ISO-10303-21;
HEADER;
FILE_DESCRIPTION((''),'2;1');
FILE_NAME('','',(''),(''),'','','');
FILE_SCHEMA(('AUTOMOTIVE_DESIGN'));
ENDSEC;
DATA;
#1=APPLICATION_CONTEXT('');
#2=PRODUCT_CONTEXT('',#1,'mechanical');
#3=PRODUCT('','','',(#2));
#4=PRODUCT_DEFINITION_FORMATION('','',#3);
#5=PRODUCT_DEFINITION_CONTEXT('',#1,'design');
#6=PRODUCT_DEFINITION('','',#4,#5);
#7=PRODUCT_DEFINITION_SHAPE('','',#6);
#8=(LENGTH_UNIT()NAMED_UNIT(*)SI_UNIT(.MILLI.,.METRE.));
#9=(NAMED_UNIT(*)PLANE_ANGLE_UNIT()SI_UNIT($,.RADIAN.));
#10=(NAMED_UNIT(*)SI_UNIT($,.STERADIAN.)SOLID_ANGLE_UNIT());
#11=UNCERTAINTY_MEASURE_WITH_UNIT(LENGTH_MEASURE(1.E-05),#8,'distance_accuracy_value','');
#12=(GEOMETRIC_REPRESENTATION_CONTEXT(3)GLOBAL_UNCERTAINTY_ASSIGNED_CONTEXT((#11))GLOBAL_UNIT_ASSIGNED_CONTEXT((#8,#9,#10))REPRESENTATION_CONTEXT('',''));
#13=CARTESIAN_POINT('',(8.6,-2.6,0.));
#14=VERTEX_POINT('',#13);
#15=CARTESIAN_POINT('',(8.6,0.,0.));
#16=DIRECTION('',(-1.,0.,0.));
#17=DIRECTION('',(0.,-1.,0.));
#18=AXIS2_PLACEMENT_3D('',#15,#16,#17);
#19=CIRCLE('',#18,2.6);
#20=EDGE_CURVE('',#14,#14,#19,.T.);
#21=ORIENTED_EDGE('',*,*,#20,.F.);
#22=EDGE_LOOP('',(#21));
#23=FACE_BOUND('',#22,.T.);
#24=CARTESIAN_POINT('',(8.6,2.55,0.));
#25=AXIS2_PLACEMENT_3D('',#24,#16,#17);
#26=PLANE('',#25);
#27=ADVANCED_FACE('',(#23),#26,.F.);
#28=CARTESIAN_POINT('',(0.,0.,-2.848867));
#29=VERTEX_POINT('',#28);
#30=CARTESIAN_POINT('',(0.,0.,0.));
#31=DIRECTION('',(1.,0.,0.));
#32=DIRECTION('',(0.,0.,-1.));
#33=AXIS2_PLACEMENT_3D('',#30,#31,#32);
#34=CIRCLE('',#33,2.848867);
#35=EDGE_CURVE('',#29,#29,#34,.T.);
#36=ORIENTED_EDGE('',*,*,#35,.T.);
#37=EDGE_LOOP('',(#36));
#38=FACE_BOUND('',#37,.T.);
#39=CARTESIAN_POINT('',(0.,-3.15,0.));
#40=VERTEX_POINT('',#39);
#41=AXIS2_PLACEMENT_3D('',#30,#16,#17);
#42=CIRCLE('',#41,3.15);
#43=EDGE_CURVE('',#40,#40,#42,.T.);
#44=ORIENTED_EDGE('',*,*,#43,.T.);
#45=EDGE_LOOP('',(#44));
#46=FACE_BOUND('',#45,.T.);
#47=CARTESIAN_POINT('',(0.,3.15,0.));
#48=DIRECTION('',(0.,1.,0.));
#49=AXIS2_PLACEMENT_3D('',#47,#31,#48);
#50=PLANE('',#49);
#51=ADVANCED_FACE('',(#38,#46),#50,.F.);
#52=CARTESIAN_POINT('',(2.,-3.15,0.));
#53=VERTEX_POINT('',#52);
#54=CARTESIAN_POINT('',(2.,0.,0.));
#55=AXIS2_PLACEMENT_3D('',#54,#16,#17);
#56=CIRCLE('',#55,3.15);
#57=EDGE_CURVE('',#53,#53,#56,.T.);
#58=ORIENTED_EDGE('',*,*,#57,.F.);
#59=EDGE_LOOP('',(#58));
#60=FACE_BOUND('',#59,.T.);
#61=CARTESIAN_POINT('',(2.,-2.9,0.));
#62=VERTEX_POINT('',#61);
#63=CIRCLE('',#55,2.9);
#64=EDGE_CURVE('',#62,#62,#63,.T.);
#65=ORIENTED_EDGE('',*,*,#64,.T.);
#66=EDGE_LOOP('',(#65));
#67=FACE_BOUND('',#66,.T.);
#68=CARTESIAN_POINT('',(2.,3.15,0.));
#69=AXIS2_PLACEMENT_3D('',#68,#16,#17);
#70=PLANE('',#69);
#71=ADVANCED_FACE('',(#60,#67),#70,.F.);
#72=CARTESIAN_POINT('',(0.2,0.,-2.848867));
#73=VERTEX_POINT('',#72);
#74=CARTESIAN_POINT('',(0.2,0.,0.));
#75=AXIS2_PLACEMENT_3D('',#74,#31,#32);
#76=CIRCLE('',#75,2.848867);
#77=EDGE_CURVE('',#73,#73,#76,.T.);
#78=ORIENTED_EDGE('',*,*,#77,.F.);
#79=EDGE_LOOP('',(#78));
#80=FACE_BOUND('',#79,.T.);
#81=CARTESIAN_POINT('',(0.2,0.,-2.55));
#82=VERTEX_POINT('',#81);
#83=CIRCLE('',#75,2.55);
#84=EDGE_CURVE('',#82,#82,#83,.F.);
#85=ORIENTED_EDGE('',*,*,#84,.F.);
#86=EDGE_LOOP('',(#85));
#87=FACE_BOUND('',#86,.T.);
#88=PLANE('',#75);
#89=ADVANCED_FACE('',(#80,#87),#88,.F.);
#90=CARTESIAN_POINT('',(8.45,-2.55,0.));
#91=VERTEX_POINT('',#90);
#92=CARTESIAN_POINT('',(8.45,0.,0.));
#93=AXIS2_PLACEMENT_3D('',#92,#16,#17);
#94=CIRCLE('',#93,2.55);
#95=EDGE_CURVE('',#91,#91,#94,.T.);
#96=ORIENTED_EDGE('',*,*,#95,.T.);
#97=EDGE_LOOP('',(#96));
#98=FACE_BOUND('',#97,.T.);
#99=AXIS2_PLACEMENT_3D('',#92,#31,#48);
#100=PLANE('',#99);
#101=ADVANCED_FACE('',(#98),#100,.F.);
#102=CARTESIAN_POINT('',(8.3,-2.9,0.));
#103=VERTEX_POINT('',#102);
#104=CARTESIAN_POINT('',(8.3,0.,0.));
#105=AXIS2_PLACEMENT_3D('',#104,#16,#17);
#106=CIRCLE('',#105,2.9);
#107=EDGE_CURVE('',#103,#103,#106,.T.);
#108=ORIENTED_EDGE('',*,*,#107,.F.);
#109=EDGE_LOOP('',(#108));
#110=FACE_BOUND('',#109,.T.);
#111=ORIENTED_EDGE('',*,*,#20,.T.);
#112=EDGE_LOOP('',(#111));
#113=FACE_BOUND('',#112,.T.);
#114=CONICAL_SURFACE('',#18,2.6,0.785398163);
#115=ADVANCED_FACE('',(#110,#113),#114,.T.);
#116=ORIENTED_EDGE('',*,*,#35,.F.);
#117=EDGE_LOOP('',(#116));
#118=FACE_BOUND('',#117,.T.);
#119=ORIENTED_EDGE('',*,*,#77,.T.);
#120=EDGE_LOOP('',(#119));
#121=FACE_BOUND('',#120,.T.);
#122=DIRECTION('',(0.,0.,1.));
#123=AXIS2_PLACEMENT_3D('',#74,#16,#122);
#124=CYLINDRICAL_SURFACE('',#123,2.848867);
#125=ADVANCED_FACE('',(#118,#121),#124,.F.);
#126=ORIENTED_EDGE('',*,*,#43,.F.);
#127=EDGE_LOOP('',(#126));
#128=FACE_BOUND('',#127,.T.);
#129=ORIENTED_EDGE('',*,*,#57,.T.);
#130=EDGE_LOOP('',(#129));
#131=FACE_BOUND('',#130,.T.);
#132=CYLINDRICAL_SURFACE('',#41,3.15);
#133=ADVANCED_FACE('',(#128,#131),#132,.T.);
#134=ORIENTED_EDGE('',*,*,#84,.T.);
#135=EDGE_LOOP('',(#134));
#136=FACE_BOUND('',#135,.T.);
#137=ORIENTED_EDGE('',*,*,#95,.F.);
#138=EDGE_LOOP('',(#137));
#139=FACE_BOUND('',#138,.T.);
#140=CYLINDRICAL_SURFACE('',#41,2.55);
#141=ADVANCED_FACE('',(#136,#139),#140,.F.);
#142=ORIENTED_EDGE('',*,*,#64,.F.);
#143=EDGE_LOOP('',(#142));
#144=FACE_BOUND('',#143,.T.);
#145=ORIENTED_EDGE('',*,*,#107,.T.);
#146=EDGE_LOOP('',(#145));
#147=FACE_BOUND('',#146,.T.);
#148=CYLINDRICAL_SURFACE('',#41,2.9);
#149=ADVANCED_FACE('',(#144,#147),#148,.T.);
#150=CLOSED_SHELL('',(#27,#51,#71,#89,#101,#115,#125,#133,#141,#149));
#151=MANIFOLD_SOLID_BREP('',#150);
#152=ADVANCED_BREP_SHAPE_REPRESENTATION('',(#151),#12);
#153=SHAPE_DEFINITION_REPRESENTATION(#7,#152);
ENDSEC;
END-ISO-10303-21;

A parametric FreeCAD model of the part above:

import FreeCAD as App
import Part
import Sketcher

V = App.Vector
Q = App.Units.Quantity

doc = App.newDocument("Part")
params = doc.addObject("Spreadsheet::Sheet", "Params")
for row, (alias, value) in enumerate([
    ("sketch1_width", "2 mm"),
    ("sketch1_width2", "6.3 mm"),
    ("sketch1_height", "0.6 mm"),
    ("sketch1_height2", "2.6 mm"),
    ("sketch1_width3", "8.45 mm"),
    ("revolution_angle", "360 deg"),
    ("pocket1_length", "0.2 mm"),
], start=1):
    params.set(f"A{row}", alias)
    params.set(f"B{row}", "=" + value)
    params.setAlias(f"B{row}", alias)

body = doc.addObject("PartDesign::Body", "Body")

# Sketch on XY plane
sketch1 = body.newObject("Sketcher::SketchObject", "Sketch")
sketch1.AttachmentSupport = (doc.getObject("XY_Plane"), [""])
sketch1.MapMode = "FlatFace"
sketch1.addGeometry(Part.LineSegment(V(8.6, 2.6, 0), V(8.3, 2.9, 0)), False)
sketch1.addGeometry(Part.LineSegment(V(8.3, 2.9, 0), V(2, 2.9, 0)), False)
sketch1.addGeometry(Part.LineSegment(V(2, 2.9, 0), V(2, 3.15, 0)), False)
sketch1.addGeometry(Part.LineSegment(V(2, 3.15, 0), V(0, 3.15, 0)), False)
sketch1.addGeometry(Part.LineSegment(V(0, 3.15, 0), V(0, 2.55, 0)), False)
sketch1.addGeometry(Part.LineSegment(V(0, 2.55, 0), V(8.45, 2.55, 0)), False)
sketch1.addGeometry(Part.LineSegment(V(8.45, 2.55, 0), V(8.45, 0, 0)), False)
sketch1.addGeometry(Part.LineSegment(V(8.45, 0, 0), V(8.6, 0, 0)), False)
sketch1.addGeometry(Part.LineSegment(V(8.6, 0, 0), V(8.6, 2.6, 0)), False)
sketch1.addConstraint(Sketcher.Constraint("Coincident", 0, 2, 1, 1))
sketch1.addConstraint(Sketcher.Constraint("Coincident", 1, 2, 2, 1))
sketch1.addConstraint(Sketcher.Constraint("Coincident", 2, 2, 3, 1))
sketch1.addConstraint(Sketcher.Constraint("Coincident", 3, 2, 4, 1))
sketch1.addConstraint(Sketcher.Constraint("Coincident", 4, 2, 5, 1))
sketch1.addConstraint(Sketcher.Constraint("Coincident", 5, 2, 6, 1))
sketch1.addConstraint(Sketcher.Constraint("Coincident", 6, 2, 7, 1))
sketch1.addConstraint(Sketcher.Constraint("Coincident", 7, 2, 8, 1))
sketch1.addConstraint(Sketcher.Constraint("Coincident", 8, 2, 0, 1))
sketch1.addConstraint(Sketcher.Constraint("Horizontal", 1))
sketch1.addConstraint(Sketcher.Constraint("Vertical", 2))
sketch1.addConstraint(Sketcher.Constraint("Horizontal", 3))
sketch1.addConstraint(Sketcher.Constraint("Vertical", 4))
sketch1.addConstraint(Sketcher.Constraint("Horizontal", 5))
sketch1.addConstraint(Sketcher.Constraint("Vertical", 6))
sketch1.addConstraint(Sketcher.Constraint("Horizontal", 7))
sketch1.addConstraint(Sketcher.Constraint("Vertical", 8))
sketch1.addConstraint(Sketcher.Constraint("PointOnObject", 3, 2, -2))
sketch1.addConstraint(Sketcher.Constraint("PointOnObject", 6, 2, -1))
sketch1.addConstraint(Sketcher.Constraint("DistanceX", 3, 2, 3, 1, Q("2 mm")))
sketch1.addConstraint(Sketcher.Constraint("Angle", 0, Q("135 deg")))
sketch1.addConstraint(Sketcher.Constraint("DistanceX", 1, 2, 1, 1, Q("6.3 mm")))
sketch1.addConstraint(Sketcher.Constraint("DistanceY", 4, 2, 4, 1, Q("0.6 mm")))
sketch1.addConstraint(Sketcher.Constraint("DistanceY", 8, 1, 8, 2, Q("2.6 mm")))
sketch1.addConstraint(Sketcher.Constraint("DistanceX", 5, 1, 5, 2, Q("8.45 mm")))
sketch1.addConstraint(Sketcher.Constraint("DistanceX", 7, 1, 7, 2, Q("0.15 mm")))
sketch1.addConstraint(Sketcher.Constraint("DistanceY", 2, 1, 2, 2, Q("0.25 mm")))
sketch1.setExpression("Constraints[19]", "Params.sketch1_width")
sketch1.setExpression("Constraints[21]", "Params.sketch1_width2")
sketch1.setExpression("Constraints[22]", "Params.sketch1_height")
sketch1.setExpression("Constraints[23]", "Params.sketch1_height2")
sketch1.setExpression("Constraints[24]", "Params.sketch1_width3")
revolution = body.newObject("PartDesign::Revolution", "Revolution")
revolution.Profile = sketch1
revolution.ReferenceAxis = (sketch1, ["H_Axis"])
revolution.setExpression("Angle", "Params.revolution_angle")

# Sketch on YZ plane
sketch2 = body.newObject("Sketcher::SketchObject", "Sketch001")
sketch2.AttachmentSupport = (doc.getObject("YZ_Plane"), [""])
sketch2.MapMode = "FlatFace"
sketch2.addGeometry(Part.Circle(V(0, 0, 0), V(0, 0, 1), 2.8), False)
sketch2.addConstraint(Sketcher.Constraint("Coincident", 0, 3, -1, 1))
sketch2.addConstraint(Sketcher.Constraint("Diameter", 0, Q("5.697734 mm")))
pocket1 = body.newObject("PartDesign::Pocket", "Pocket")
pocket1.Profile = sketch2
pocket1.setExpression("Length", "Params.pocket1_length")
pocket1.Reversed = True

doc.recompute()
